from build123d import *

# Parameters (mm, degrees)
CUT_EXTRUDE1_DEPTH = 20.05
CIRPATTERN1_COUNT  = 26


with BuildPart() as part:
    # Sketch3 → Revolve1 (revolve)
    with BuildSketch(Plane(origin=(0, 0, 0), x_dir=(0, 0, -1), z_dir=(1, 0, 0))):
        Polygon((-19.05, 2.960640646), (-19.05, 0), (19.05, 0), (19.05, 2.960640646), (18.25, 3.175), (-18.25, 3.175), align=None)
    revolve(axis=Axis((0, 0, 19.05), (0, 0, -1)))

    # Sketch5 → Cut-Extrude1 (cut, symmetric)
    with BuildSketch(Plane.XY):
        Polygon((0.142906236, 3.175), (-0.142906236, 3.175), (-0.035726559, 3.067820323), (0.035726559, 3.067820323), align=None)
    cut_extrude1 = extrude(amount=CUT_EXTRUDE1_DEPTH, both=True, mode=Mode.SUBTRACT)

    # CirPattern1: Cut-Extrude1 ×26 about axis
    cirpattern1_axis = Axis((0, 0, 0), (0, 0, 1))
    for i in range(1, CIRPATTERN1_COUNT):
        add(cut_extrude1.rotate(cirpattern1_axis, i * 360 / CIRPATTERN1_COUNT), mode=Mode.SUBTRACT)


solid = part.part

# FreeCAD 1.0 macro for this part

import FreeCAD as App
import Part
import Sketcher

V = App.Vector
Q = App.Units.Quantity

doc = App.newDocument("Part")
body = doc.addObject("PartDesign::Body", "Body")

# Sketch on YZ plane
sketch1 = doc.addObject("Sketcher::SketchObject", "Sketch")
body.addObject(sketch1)
sketch1.AttachmentSupport = (doc.YZ_Plane, [""])
sketch1.MapMode = "FlatFace"
sketch1.addGeometry([
    Part.LineSegment(V(3, 19.1, 0), V(0, 19.1, 0)),  # 0
    Part.LineSegment(V(0, 19.1, 0), V(0, -19.1, 0)),  # 1
    Part.LineSegment(V(0, -19.1, 0), V(3, -19.1, 0)),  # 2
    Part.LineSegment(V(3, -19.1, 0), V(3.2, -18.2, 0)),  # 3
    Part.LineSegment(V(3.2, -18.2, 0), V(3.2, 18.2, 0)),  # 4
    Part.LineSegment(V(3.2, 18.2, 0), V(3, 19.1, 0)),  # 5
], False)
sketch1.addConstraint([
    Sketcher.Constraint("Coincident", 0, 2, 1, 1),
    Sketcher.Constraint("Coincident", 1, 2, 2, 1),
    Sketcher.Constraint("Coincident", 2, 2, 3, 1),
    Sketcher.Constraint("Coincident", 3, 2, 4, 1),
    Sketcher.Constraint("Coincident", 4, 2, 5, 1),
    Sketcher.Constraint("Coincident", 5, 2, 0, 1),
    Sketcher.Constraint("Horizontal", 0),
    Sketcher.Constraint("Vertical", 1),
    Sketcher.Constraint("Horizontal", 2),
    Sketcher.Constraint("Vertical", 4),
    Sketcher.Constraint("Symmetric", 0, 2, 1, 2, -1, 1),
    Sketcher.Constraint("Vertical", 2, 2, 5, 2),
    Sketcher.Constraint("Equal", 3, 5),
    Sketcher.Constraint("Angle", 3, Q("75 deg")),
    Sketcher.Constraint("DistanceY", 1, 2, 1, 1, 38.1),
    Sketcher.Constraint("DistanceY", 4, 1, 4, 2, 36.5),
    Sketcher.Constraint("DistanceX", -1, 1, 3, 2, 3.175),
])
revolution = doc.addObject("PartDesign::Revolution", "Revolution")
body.addObject(revolution)
revolution.Profile = sketch1
revolution.ReferenceAxis = (sketch1, ["V_Axis"])
revolution.Angle = 360

# Sketch on XY plane
sketch2 = doc.addObject("Sketcher::SketchObject", "Sketch001")
body.addObject(sketch2)
sketch2.AttachmentSupport = (doc.XY_Plane, [""])
sketch2.MapMode = "FlatFace"
sketch2.addGeometry([
    Part.LineSegment(V(0.14, 3.17, 0), V(-0.14, 3.17, 0)),
    Part.LineSegment(V(-0.14, 3.17, 0), V(-0.04, 3.07, 0)),
    Part.LineSegment(V(-0.04, 3.07, 0), V(0.04, 3.07, 0)),
    Part.LineSegment(V(0.04, 3.07, 0), V(0.14, 3.17, 0)),
], False)
sketch2.addConstraint([
    Sketcher.Constraint("Coincident", 0, 2, 1, 1),
    Sketcher.Constraint("Coincident", 1, 2, 2, 1),
    Sketcher.Constraint("Coincident", 2, 2, 3, 1),
    Sketcher.Constraint("Coincident", 3, 2, 0, 1),
    Sketcher.Constraint("Horizontal", 0),
    Sketcher.Constraint("Horizontal", 2),
    Sketcher.Constraint("Perpendicular", 1, 3),
    Sketcher.Constraint("Equal", 1, 3),
    Sketcher.Constraint("DistanceY", -1, 1, 0, 2, 3.175),
    Sketcher.Constraint("DistanceX", 0, 2, 0, 1, 0.285812),
    Sketcher.Constraint("DistanceX", 2, 1, 2, 2, 0.071453),
    Sketcher.Constraint("DistanceX", 0, 2, -1, 1, 0.142906),
])
pocket1 = doc.addObject("PartDesign::Pocket", "Pocket")
body.addObject(pocket1)
pocket1.Profile = sketch2
pocket1.Length = 40.1
pocket1.Midplane = True
doc.recompute()

polarpattern = doc.addObject("PartDesign::PolarPattern", "PolarPattern")
body.addObject(polarpattern)
polarpattern.Originals = [pocket1]
polarpattern.Axis = (doc.Z_Axis, [""])
polarpattern.Angle = 360
polarpattern.Occurrences = 26
body.Tip = polarpattern

doc.recompute()
